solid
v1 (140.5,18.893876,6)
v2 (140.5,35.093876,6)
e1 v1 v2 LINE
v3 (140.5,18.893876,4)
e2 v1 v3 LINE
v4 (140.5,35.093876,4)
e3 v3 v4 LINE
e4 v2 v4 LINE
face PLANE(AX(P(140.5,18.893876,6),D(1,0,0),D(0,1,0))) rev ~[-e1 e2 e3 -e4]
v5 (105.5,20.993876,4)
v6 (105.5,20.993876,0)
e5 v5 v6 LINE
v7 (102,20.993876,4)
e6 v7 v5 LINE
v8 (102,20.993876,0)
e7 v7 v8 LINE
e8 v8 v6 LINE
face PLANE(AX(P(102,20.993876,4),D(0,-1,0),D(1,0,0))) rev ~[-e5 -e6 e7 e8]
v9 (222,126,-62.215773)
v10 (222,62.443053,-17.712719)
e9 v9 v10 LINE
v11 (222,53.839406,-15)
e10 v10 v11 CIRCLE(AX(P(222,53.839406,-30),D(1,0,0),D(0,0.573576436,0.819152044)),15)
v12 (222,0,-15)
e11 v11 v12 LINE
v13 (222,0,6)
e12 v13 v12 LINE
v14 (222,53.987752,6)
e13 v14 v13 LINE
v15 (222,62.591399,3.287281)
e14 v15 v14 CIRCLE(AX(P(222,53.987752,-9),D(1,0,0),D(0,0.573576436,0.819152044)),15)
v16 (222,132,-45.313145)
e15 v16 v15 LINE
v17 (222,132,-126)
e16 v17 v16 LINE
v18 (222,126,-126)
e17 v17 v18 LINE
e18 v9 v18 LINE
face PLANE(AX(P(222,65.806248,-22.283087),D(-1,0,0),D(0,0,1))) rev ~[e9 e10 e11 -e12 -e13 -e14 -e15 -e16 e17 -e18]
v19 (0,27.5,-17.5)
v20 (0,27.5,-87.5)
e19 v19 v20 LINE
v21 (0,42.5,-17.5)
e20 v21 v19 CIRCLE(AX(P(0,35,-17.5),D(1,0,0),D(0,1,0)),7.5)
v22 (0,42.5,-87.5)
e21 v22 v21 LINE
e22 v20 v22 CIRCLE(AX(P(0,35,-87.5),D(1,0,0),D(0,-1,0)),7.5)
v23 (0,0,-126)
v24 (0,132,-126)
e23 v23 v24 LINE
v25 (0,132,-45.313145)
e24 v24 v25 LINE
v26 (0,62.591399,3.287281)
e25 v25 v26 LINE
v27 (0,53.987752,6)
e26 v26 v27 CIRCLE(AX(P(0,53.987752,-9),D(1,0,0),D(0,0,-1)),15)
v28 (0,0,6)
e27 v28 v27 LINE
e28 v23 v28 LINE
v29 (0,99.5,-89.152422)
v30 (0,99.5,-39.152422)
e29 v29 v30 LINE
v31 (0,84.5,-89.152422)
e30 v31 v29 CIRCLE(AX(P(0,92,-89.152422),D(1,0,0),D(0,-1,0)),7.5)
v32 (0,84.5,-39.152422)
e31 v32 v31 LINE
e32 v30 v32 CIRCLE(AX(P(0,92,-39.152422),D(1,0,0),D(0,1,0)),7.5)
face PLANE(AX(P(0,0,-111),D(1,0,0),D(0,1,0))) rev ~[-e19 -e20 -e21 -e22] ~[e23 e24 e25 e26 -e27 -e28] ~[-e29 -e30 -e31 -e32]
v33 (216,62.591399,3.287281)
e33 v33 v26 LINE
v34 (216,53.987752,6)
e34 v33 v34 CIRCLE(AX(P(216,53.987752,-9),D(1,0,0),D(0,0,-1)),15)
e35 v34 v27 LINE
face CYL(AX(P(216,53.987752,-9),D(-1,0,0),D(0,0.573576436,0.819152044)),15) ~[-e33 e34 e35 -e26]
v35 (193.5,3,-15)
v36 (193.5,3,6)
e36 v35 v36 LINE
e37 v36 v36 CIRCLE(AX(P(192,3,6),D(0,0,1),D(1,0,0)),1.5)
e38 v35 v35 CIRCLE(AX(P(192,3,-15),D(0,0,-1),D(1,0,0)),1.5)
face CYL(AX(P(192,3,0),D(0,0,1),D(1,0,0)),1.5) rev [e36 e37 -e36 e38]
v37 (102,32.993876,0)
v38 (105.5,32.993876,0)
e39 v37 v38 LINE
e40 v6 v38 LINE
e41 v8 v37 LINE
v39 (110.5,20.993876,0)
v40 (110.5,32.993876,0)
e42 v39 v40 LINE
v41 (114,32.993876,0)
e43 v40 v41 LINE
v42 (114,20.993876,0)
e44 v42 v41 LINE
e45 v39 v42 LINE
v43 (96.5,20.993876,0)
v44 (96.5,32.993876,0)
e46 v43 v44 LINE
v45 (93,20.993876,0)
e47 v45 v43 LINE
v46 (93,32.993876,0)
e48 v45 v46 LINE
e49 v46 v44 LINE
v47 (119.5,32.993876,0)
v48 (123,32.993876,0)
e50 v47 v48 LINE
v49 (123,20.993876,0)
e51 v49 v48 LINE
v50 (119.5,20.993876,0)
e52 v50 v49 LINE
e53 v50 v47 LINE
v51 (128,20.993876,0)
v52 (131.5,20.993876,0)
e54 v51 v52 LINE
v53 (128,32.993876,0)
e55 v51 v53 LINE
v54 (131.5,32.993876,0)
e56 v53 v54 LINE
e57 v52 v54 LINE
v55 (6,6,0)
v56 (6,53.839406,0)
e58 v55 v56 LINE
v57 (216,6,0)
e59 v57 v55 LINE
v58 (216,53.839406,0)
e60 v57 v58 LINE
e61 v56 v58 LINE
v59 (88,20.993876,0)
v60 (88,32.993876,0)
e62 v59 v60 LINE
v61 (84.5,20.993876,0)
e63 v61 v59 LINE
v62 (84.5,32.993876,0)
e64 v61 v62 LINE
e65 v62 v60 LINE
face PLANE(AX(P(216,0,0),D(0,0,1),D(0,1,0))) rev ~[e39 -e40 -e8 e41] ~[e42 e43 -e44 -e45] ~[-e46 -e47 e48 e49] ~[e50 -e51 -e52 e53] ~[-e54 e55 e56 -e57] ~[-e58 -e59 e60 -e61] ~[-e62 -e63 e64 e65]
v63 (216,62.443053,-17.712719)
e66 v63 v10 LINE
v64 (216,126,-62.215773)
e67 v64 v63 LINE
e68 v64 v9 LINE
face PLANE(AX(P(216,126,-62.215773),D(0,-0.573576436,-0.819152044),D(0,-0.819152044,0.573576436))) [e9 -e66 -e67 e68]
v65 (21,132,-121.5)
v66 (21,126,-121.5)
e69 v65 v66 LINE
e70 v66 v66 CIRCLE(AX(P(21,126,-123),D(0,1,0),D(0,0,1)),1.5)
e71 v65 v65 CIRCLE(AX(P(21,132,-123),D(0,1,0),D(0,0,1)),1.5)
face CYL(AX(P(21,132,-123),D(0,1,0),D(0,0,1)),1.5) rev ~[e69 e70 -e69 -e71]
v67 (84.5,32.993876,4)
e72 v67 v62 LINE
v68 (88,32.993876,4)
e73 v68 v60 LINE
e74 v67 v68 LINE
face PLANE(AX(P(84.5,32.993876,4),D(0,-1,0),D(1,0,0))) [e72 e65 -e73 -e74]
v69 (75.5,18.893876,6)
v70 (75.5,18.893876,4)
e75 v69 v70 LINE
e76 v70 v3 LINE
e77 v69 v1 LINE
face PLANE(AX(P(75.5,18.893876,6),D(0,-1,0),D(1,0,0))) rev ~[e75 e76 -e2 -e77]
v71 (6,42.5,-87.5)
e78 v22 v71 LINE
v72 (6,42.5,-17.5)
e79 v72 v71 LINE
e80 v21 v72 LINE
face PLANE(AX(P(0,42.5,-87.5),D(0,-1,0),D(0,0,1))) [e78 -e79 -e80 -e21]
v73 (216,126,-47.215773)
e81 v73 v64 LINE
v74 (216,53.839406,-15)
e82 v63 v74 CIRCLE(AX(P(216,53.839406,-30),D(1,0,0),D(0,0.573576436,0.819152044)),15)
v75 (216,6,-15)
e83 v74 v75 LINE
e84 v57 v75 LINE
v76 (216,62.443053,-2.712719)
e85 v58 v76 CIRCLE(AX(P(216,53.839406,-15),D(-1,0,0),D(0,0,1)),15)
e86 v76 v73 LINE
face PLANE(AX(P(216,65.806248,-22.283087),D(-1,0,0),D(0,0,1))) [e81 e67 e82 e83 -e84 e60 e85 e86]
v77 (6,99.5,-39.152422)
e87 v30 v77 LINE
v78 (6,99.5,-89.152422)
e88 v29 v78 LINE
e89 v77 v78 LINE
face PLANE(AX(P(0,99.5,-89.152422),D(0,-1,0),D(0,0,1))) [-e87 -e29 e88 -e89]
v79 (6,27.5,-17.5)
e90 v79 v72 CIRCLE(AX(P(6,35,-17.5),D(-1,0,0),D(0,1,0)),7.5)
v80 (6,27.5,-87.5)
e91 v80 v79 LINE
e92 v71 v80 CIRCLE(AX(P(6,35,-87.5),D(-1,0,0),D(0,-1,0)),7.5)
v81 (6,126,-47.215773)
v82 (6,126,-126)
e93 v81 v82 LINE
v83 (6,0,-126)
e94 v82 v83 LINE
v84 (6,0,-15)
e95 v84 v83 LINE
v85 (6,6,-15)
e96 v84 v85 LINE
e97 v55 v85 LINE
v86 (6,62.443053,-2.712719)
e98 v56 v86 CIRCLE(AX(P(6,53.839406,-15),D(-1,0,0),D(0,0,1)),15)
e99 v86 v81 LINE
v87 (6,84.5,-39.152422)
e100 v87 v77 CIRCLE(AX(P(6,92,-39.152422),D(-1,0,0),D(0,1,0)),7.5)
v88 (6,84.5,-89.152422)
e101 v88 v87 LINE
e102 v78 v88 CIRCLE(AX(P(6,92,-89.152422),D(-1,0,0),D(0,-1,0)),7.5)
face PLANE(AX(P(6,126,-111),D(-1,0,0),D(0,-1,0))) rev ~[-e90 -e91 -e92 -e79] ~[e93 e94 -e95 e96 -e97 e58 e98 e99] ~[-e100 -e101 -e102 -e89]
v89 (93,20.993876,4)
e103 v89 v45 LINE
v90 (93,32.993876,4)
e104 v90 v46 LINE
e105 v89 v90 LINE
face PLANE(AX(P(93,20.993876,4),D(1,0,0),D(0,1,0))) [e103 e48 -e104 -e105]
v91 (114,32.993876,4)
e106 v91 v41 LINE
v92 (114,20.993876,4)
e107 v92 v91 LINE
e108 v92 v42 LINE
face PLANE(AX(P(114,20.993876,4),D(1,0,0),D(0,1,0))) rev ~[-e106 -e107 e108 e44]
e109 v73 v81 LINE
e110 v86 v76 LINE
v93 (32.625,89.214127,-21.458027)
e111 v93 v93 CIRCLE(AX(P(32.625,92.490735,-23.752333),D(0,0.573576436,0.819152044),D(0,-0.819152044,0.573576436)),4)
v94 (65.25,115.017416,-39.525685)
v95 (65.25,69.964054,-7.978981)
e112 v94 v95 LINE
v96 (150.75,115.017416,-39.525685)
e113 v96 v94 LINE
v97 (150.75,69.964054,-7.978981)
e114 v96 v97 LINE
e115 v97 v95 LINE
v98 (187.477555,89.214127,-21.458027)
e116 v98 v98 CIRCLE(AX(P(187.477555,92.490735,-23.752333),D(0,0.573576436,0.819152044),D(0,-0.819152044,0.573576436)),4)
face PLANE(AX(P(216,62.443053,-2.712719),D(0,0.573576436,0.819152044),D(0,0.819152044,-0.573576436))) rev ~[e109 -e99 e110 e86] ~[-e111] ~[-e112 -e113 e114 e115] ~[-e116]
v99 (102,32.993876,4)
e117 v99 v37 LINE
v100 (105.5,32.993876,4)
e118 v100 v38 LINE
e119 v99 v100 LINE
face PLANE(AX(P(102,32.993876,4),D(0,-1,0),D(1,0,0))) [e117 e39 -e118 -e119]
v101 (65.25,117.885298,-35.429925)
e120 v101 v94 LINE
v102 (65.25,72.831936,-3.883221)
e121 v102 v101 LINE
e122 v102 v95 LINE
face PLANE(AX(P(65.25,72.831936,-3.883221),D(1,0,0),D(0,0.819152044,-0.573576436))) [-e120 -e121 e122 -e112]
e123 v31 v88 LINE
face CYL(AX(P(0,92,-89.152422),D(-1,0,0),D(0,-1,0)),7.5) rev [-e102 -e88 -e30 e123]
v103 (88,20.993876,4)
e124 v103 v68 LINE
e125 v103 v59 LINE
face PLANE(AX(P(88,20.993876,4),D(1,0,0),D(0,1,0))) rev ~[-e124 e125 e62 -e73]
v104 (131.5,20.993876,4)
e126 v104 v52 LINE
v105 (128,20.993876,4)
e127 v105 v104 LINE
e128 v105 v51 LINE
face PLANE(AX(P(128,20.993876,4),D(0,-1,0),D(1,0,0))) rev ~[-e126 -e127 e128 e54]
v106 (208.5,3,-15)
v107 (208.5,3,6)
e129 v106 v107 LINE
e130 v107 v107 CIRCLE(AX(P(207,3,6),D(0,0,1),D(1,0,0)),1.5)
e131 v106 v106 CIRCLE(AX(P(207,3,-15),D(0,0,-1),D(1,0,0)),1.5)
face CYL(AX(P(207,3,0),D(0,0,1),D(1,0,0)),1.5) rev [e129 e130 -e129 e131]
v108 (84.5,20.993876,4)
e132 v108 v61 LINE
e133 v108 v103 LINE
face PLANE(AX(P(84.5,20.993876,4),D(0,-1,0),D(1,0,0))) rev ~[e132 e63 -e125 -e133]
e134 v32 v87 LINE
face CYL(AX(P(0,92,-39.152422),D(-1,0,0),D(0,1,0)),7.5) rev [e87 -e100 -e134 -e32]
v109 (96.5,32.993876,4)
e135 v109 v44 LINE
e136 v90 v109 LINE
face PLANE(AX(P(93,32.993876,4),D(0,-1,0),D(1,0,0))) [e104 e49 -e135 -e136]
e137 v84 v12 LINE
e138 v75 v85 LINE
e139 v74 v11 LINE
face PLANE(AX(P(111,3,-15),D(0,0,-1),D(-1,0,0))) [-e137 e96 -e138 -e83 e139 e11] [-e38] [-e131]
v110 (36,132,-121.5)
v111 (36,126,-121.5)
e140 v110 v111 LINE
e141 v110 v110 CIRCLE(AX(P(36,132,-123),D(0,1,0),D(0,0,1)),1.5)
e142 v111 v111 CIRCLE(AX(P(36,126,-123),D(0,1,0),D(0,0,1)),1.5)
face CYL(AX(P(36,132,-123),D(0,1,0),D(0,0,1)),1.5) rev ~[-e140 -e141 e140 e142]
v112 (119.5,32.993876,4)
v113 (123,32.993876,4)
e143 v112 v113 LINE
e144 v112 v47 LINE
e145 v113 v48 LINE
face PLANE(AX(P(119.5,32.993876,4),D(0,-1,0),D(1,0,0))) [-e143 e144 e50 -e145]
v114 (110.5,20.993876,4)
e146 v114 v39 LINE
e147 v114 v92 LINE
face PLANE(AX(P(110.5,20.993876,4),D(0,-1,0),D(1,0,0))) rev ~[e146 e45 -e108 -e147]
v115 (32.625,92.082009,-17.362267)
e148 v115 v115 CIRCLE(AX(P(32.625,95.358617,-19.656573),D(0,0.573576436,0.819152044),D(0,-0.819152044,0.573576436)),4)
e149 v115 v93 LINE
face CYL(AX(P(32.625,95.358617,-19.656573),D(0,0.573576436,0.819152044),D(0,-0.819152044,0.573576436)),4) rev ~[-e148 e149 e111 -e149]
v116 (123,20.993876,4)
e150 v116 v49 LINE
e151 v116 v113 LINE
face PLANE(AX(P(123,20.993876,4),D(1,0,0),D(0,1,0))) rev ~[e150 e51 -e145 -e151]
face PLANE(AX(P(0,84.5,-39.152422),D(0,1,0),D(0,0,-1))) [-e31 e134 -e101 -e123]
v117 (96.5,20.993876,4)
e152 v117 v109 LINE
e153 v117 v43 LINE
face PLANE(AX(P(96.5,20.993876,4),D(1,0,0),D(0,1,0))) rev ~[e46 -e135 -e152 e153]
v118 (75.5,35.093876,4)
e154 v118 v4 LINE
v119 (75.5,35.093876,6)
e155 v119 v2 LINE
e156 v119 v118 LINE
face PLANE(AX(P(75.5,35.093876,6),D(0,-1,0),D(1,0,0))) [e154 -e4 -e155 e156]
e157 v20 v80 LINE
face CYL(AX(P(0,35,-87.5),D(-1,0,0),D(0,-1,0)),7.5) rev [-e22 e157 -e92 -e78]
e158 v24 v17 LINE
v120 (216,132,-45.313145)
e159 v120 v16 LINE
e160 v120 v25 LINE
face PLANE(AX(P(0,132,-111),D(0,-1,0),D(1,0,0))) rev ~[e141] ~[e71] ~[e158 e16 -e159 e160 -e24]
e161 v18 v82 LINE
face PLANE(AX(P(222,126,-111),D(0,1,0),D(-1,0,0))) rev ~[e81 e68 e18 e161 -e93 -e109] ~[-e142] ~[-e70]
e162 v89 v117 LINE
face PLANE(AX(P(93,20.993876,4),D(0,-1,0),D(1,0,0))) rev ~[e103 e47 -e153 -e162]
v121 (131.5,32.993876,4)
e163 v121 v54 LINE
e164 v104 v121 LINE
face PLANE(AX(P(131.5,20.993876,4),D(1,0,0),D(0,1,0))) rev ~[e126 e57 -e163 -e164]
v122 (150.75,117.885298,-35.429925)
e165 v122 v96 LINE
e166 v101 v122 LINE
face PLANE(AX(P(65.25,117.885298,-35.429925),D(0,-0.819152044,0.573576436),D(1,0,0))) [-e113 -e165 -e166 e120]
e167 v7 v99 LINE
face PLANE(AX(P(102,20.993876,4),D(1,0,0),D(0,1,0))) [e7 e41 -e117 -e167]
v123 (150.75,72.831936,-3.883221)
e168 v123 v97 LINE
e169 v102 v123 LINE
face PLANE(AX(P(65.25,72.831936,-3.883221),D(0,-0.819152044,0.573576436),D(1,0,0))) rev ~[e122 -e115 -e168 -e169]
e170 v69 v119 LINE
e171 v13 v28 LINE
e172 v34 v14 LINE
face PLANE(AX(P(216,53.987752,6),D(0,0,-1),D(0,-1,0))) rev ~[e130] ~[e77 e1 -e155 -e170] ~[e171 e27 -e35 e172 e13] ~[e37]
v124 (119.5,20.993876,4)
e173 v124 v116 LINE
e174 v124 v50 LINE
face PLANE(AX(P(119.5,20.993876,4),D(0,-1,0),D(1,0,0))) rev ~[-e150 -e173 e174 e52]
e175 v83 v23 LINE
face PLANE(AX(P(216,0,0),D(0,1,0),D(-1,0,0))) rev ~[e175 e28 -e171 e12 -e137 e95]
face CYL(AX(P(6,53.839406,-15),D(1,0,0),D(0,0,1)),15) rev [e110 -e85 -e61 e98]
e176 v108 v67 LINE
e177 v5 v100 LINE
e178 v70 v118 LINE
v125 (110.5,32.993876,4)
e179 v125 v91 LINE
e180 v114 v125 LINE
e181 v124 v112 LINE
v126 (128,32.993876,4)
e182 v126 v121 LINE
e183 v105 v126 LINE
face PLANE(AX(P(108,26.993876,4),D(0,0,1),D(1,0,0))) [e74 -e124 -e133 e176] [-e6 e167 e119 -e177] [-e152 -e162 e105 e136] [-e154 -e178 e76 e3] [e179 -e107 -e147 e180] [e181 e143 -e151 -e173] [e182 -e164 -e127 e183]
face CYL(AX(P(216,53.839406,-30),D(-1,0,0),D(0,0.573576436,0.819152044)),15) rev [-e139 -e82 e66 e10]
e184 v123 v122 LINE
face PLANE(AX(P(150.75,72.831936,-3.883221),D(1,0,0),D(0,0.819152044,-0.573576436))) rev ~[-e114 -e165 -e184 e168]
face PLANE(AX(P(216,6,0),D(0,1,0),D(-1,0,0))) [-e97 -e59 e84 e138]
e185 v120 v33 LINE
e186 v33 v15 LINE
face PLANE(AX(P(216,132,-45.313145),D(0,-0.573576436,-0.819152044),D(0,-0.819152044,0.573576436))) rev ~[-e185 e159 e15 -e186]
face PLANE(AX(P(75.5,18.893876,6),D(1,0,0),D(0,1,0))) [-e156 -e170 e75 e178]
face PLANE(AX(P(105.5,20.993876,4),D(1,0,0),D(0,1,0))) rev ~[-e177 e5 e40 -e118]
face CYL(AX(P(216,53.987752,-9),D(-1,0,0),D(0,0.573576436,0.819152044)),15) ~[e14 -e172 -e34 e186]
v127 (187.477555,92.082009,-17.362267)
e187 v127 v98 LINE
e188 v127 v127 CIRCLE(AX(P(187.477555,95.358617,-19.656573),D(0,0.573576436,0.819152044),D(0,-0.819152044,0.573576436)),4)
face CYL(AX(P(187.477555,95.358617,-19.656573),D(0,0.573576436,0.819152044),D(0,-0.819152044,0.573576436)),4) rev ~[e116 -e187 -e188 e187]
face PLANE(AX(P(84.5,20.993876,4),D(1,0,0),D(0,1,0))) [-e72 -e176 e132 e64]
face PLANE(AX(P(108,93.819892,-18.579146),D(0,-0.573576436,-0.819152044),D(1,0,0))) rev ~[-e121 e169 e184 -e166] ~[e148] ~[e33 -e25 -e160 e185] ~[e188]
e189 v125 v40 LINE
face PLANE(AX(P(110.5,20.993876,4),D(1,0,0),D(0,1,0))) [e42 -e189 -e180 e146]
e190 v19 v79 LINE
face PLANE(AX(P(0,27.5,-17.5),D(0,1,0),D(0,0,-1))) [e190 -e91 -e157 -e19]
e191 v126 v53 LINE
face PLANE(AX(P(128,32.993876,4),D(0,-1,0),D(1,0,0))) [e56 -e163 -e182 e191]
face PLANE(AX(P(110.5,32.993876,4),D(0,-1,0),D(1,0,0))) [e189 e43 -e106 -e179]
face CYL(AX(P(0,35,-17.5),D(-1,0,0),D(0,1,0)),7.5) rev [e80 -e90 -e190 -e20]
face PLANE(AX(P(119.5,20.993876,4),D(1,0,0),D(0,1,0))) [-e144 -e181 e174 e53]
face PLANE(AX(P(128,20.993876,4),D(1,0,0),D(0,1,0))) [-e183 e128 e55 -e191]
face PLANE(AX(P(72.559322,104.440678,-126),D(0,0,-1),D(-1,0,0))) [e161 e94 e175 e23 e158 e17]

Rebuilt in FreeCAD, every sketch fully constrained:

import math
import FreeCAD as App
import Part
import Sketcher
Q = App.Units.Quantity


def edges_at(feature, points):
    """Names of the edges that pass closest to the given points."""
    edges = feature.Shape.Edges
    near = lambda p: min(range(len(edges)), key=lambda i: edges[i].distToShape(Part.Vertex(*p))[0])
    return sorted({f"Edge{near(p) + 1}" for p in points})


def add_polygon(sketch, points):
    """Adds a closed chain of lines whose ends are joined by coincident constraints."""
    first, n = sketch.GeometryCount, len(points)
    for a, b in zip(points, points[1:] + points[:1]):
        sketch.addGeometry(Part.LineSegment(App.Vector(*a, 0), App.Vector(*b, 0)), False)
    for i in range(n):
        sketch.addConstraint(Sketcher.Constraint("Coincident", first + i, 2, first + (i + 1) % n, 1))

doc = App.newDocument("Part")
body = doc.addObject("PartDesign::Body", "Body")

# Sketch on YZ plane
sketch1 = doc.addObject("Sketcher::SketchObject", "Sketch")
body.addObject(sketch1)
sketch1.AttachmentSupport = (doc.YZ_Plane, [""])
sketch1.MapMode = "FlatFace"
add_polygon(sketch1, [(126, 0), (0, 0), (0, -111), (126, -111)])  # lines 0-3
sketch1.addConstraint(Sketcher.Constraint("Horizontal", 0))
sketch1.addConstraint(Sketcher.Constraint("Vertical", 1))
sketch1.addConstraint(Sketcher.Constraint("Horizontal", 2))
sketch1.addConstraint(Sketcher.Constraint("Vertical", 3))
sketch1.addConstraint(Sketcher.Constraint("Coincident", 0, 2, -1, 1))
sketch1.addConstraint(Sketcher.Constraint("DistanceX", 0, 2, 0, 1, 126.0))
sketch1.addConstraint(Sketcher.Constraint("DistanceY", 1, 2, 1, 1, 111.0))
pad1 = doc.addObject("PartDesign::Pad", "Pad")
body.addObject(pad1)
pad1.Profile = sketch1
pad1.Length = 6

# Sketch on XZ plane
sketch2 = doc.addObject("Sketcher::SketchObject", "Sketch001")
body.addObject(sketch2)
sketch2.AttachmentSupport = (doc.XZ_Plane, [""])
sketch2.MapMode = "FlatFace"
sketch2.AttachmentOffset = App.Placement(App.Vector(0, 0, -126), App.Rotation())
add_polygon(sketch2, [(0, -111), (0, 0), (216, 0), (216, -111)])  # lines 0-3
sketch2.addConstraint(Sketcher.Constraint("Vertical", 0))
sketch2.addConstraint(Sketcher.Constraint("Horizontal", 1))
sketch2.addConstraint(Sketcher.Constraint("Vertical", 2))
sketch2.addConstraint(Sketcher.Constraint("Horizontal", 3))
sketch2.addConstraint(Sketcher.Constraint("Coincident", 0, 2, -1, 1))
sketch2.addConstraint(Sketcher.Constraint("DistanceX", 1, 1, 1, 2, 216.0))
sketch2.addConstraint(Sketcher.Constraint("DistanceY", 0, 1, 0, 2, 111.0))
pad2 = doc.addObject("PartDesign::Pad", "Pad001")
body.addObject(pad2)
pad2.Profile = sketch2
pad2.Length = 6
pad2.Reversed = True

# Sketch on XY plane
sketch3 = doc.addObject("Sketcher::SketchObject", "Sketch002")
body.addObject(sketch3)
sketch3.AttachmentSupport = (doc.XY_Plane, [""])
sketch3.MapMode = "FlatFace"
add_polygon(sketch3, [(0, 132), (0, 0), (216, 0), (216, 132)])  # lines 0-3
sketch3.addConstraint(Sketcher.Constraint("Vertical", 0))
sketch3.addConstraint(Sketcher.Constraint("Horizontal", 1))
sketch3.addConstraint(Sketcher.Constraint("Vertical", 2))
sketch3.addConstraint(Sketcher.Constraint("Horizontal", 3))
sketch3.addConstraint(Sketcher.Constraint("Coincident", 0, 2, -1, 1))
sketch3.addConstraint(Sketcher.Constraint("DistanceX", 1, 1, 1, 2, 216.0))
sketch3.addConstraint(Sketcher.Constraint("DistanceY", 0, 2, 0, 1, 132.0))
pad3 = doc.addObject("PartDesign::Pad", "Pad002")
body.addObject(pad3)
pad3.Profile = sketch3
pad3.Length = 6

# Sketch on an angled plane
sketch4 = doc.addObject("Sketcher::SketchObject", "Sketch003")
body.addObject(sketch4)
sketch4.Placement = App.Placement(App.Vector(0, 19.268574, 27.518376), App.Rotation(App.Vector(1, 0, 0), App.Vector(0, -0.819152044, 0.573576436), App.Vector(0, -0.573576436, -0.819152044), "ZXY"))
add_polygon(sketch4, [(0, -38), (0, -138), (216, -138), (216, -38)])  # lines 0-3
sketch4.addConstraint(Sketcher.Constraint("Vertical", 0))
sketch4.addConstraint(Sketcher.Constraint("Horizontal", 1))
sketch4.addConstraint(Sketcher.Constraint("Vertical", 2))
sketch4.addConstraint(Sketcher.Constraint("Horizontal", 3))
sketch4.addConstraint(Sketcher.Constraint("PointOnObject", 0, 2, -2))
sketch4.addConstraint(Sketcher.Constraint("DistanceX", 1, 1, 1, 2, 216.0))
sketch4.addConstraint(Sketcher.Constraint("DistanceY", 0, 2, 0, 1, 99.986345))
sketch4.addConstraint(Sketcher.Constraint("DistanceY", 0, 2, -1, 1, 137.502489))
pocket1 = doc.addObject("PartDesign::Pocket", "Pocket")
body.addObject(pocket1)
pocket1.Profile = sketch4
pocket1.Length = 75

# Sketch on an angled plane
sketch5 = doc.addObject("Sketcher::SketchObject", "Sketch004")
body.addObject(sketch5)
sketch5.Placement = App.Placement(App.Vector(0, 19.268574, 27.518376), App.Rotation(App.Vector(1, 0, 0), App.Vector(0, -0.819152044, 0.573576436), App.Vector(0, -0.573576436, -0.819152044), "ZXY"))
add_polygon(sketch5, [(0, -38), (0, -138), (216, -138), (216, -38)])  # lines 0-3
sketch5.addConstraint(Sketcher.Constraint("Vertical", 0))
sketch5.addConstraint(Sketcher.Constraint("Horizontal", 1))
sketch5.addConstraint(Sketcher.Constraint("Vertical", 2))
sketch5.addConstraint(Sketcher.Constraint("Horizontal", 3))
sketch5.addConstraint(Sketcher.Constraint("PointOnObject", 0, 2, -2))
sketch5.addConstraint(Sketcher.Constraint("DistanceX", 1, 1, 1, 2, 216.0))
sketch5.addConstraint(Sketcher.Constraint("DistanceY", 0, 2, 0, 1, 99.986345))
sketch5.addConstraint(Sketcher.Constraint("DistanceY", 0, 2, -1, 1, 137.502489))
pad4 = doc.addObject("PartDesign::Pad", "Pad003")
body.addObject(pad4)
pad4.Profile = sketch5
pad4.Length = 5
pad4.Reversed = True

# Sketch on YZ plane
sketch6 = doc.addObject("Sketcher::SketchObject", "Sketch005")
body.addObject(sketch6)
sketch6.AttachmentSupport = (doc.YZ_Plane, [""])
sketch6.MapMode = "FlatFace"
sketch6.AttachmentOffset = App.Placement(App.Vector(0, 0, 216), App.Rotation())
add_polygon(sketch6, [(50, 6), (58.7, 6), (52.9, 10.1)])  # lines 0-2
add_polygon(sketch6, [(132, -45.3), (132, -51.2), (134.8, -47.3)])  # lines 3-5
sketch6.addConstraint(Sketcher.Constraint("Horizontal", 0))
sketch6.addConstraint(Sketcher.Constraint("Vertical", 3))
sketch6.addConstraint(Sketcher.Constraint("Perpendicular", 1, 2))
sketch6.addConstraint(Sketcher.Constraint("Parallel", 2, 4))
sketch6.addConstraint(Sketcher.Constraint("Perpendicular", 4, 5))
sketch6.addConstraint(Sketcher.Constraint("Angle", 1, Q("145 deg")))
sketch6.addConstraint(Sketcher.Constraint("Distance", 2, 5.0))
sketch6.addConstraint(Sketcher.Constraint("DistanceY", -1, 1, 0, 2, 6.0))
sketch6.addConstraint(Sketcher.Constraint("DistanceX", -1, 1, 2, 2, 50.0))
sketch6.addConstraint(Sketcher.Constraint("DistanceX", -1, 1, 3, 2, 132.0))
sketch6.addConstraint(Sketcher.Constraint("DistanceY", 3, 2, 3, 1, 5.899591))
sketch6.addConstraint(Sketcher.Constraint("DistanceY", 4, 2, -1, 1, 47.254051))
pocket2 = doc.addObject("PartDesign::Pocket", "Pocket001")
body.addObject(pocket2)
pocket2.Profile = sketch6
pocket2.Length = 314

# Sketch on an angled plane
sketch7 = doc.addObject("Sketcher::SketchObject", "Sketch006")
body.addObject(sketch7)
sketch7.Placement = App.Placement(App.Vector(0, 22.136456, 31.614136), App.Rotation(App.Vector(1, 0, 0), App.Vector(0, 0.819152044, -0.573576436), App.Vector(0, 0.573576436, 0.819152044), "ZXY"))
add_polygon(sketch7, [(65, 117), (65, 62), (151, 62), (151, 117)])  # lines 0-3
sketch7.addConstraint(Sketcher.Constraint("Vertical", 0))
sketch7.addConstraint(Sketcher.Constraint("Horizontal", 1))
sketch7.addConstraint(Sketcher.Constraint("Vertical", 2))
sketch7.addConstraint(Sketcher.Constraint("Horizontal", 3))
sketch7.addConstraint(Sketcher.Constraint("DistanceY", 0, 2, 0, 1, 55.0))
sketch7.addConstraint(Sketcher.Constraint("DistanceX", 1, 1, 1, 2, 85.5))
sketch7.addConstraint(Sketcher.Constraint("DistanceX", -1, 1, 0, 2, 65.25))
sketch7.addConstraint(Sketcher.Constraint("DistanceY", -1, 1, 0, 2, 61.887753))
pocket3 = doc.addObject("PartDesign::Pocket", "Pocket002")
body.addObject(pocket3)
pocket3.Profile = sketch7
pocket3.Length = 14
doc.recompute()

fillet = doc.addObject("PartDesign::Fillet", "Fillet")
body.addObject(fillet)
fillet.Base = (pocket3, edges_at(pocket3, [(111, 58.569, 0), (108, 58.717, 6)]))
fillet.Radius = 15

# Sketch on YZ plane
sketch8 = doc.addObject("Sketcher::SketchObject", "Sketch007")
body.addObject(sketch8)
sketch8.AttachmentSupport = (doc.YZ_Plane, [""])
sketch8.MapMode = "FlatFace"
sketch8.addGeometry(Part.LineSegment(App.Vector(42, -18, 0), App.Vector(42, -88, 0)), False)
sketch8.addGeometry(Part.ArcOfCircle(Part.Circle(App.Vector(35, -88, 0), App.Vector(0, 0, 1), 8), math.radians(180), math.radians(360)), False)
sketch8.addGeometry(Part.LineSegment(App.Vector(28, -88, 0), App.Vector(28, -18, 0)), False)
sketch8.addGeometry(Part.ArcOfCircle(Part.Circle(App.Vector(35, -18, 0), App.Vector(0, 0, 1), 8), math.radians(0), math.radians(180)), False)
sketch8.addGeometry(Part.LineSegment(App.Vector(100, -39, 0), App.Vector(100, -89, 0)), False)
sketch8.addGeometry(Part.ArcOfCircle(Part.Circle(App.Vector(92, -89, 0), App.Vector(0, 0, 1), 8), math.radians(180), math.radians(360)), False)
sketch8.addGeometry(Part.LineSegment(App.Vector(84, -89, 0), App.Vector(84, -39, 0)), False)
sketch8.addGeometry(Part.ArcOfCircle(Part.Circle(App.Vector(92, -39, 0), App.Vector(0, 0, 1), 8), math.radians(0), math.radians(180)), False)
sketch8.addConstraint(Sketcher.Constraint("Tangent", 0, 2, 1, 2))
sketch8.addConstraint(Sketcher.Constraint("Tangent", 1, 1, 2, 1))
sketch8.addConstraint(Sketcher.Constraint("Tangent", 2, 2, 3, 2))
sketch8.addConstraint(Sketcher.Constraint("Tangent", 3, 1, 0, 1))
sketch8.addConstraint(Sketcher.Constraint("Tangent", 4, 2, 5, 2))
sketch8.addConstraint(Sketcher.Constraint("Tangent", 5, 1, 6, 1))
sketch8.addConstraint(Sketcher.Constraint("Tangent", 6, 2, 7, 2))
sketch8.addConstraint(Sketcher.Constraint("Tangent", 7, 1, 4, 1))
sketch8.addConstraint(Sketcher.Constraint("Vertical", 0))
sketch8.addConstraint(Sketcher.Constraint("Vertical", 2))
sketch8.addConstraint(Sketcher.Constraint("Vertical", 4))
sketch8.addConstraint(Sketcher.Constraint("Vertical", 6))
sketch8.addConstraint(Sketcher.Constraint("Equal", 3, 5))
sketch8.addConstraint(Sketcher.Constraint("Radius", 1, 7.5))
sketch8.addConstraint(Sketcher.Constraint("DistanceY", 0, 2, 0, 1, 70.0))
sketch8.addConstraint(Sketcher.Constraint("DistanceY", 4, 2, 4, 1, 50.0))
sketch8.addConstraint(Sketcher.Constraint("DistanceX", -1, 1, 1, 3, 35.0))
sketch8.addConstraint(Sketcher.Constraint("DistanceX", -1, 1, 5, 3, 92.0))
sketch8.addConstraint(Sketcher.Constraint("DistanceY", 1, 3, -1, 1, 87.5))
sketch8.addConstraint(Sketcher.Constraint("DistanceY", 5, 3, -1, 1, 89.152422))
pocket4 = doc.addObject("PartDesign::Pocket", "Pocket003")
body.addObject(pocket4)
pocket4.Profile = sketch8
pocket4.Length = 27
pocket4.Reversed = True

# Sketch on XY plane
sketch9 = doc.addObject("Sketcher::SketchObject", "Sketch008")
body.addObject(sketch9)
sketch9.AttachmentSupport = (doc.XY_Plane, [""])
sketch9.MapMode = "FlatFace"
sketch9.AttachmentOffset = App.Placement(App.Vector(0, 0, 6), App.Rotation())
add_polygon(sketch9, [(76, 35), (76, 19), (140, 19), (140, 35)])  # lines 0-3
sketch9.addConstraint(Sketcher.Constraint("Vertical", 0))
sketch9.addConstraint(Sketcher.Constraint("Horizontal", 1))
sketch9.addConstraint(Sketcher.Constraint("Vertical", 2))
sketch9.addConstraint(Sketcher.Constraint("Horizontal", 3))
sketch9.addConstraint(Sketcher.Constraint("DistanceX", 1, 1, 1, 2, 65.0))
sketch9.addConstraint(Sketcher.Constraint("DistanceY", 0, 2, 0, 1, 16.2))
sketch9.addConstraint(Sketcher.Constraint("DistanceX", -1, 1, 0, 2, 75.5))
sketch9.addConstraint(Sketcher.Constraint("DistanceY", -1, 1, 0, 2, 18.893876))
pocket5 = doc.addObject("PartDesign::Pocket", "Pocket004")
body.addObject(pocket5)
pocket5.Profile = sketch9
pocket5.Length = 2

# Sketch on XY plane
sketch10 = doc.addObject("Sketcher::SketchObject", "Sketch009")
body.addObject(sketch10)
sketch10.AttachmentSupport = (doc.XY_Plane, [""])
sketch10.MapMode = "FlatFace"
sketch10.AttachmentOffset = App.Placement(App.Vector(0, 0, 4), App.Rotation())
add_polygon(sketch10, [(84.5, 33), (84.5, 21), (88, 21), (88, 33)])  # lines 0-3
add_polygon(sketch10, [(93, 33), (93, 21), (96.5, 21), (96.5, 33)])  # lines 4-7
add_polygon(sketch10, [(102, 33), (102, 21), (105.5, 21), (105.5, 33)])  # lines 8-11
add_polygon(sketch10, [(110.5, 33), (110.5, 21), (114, 21), (114, 33)])  # lines 12-15
add_polygon(sketch10, [(119.5, 33), (119.5, 21), (123, 21), (123, 33)])  # lines 16-19
add_polygon(sketch10, [(128, 33), (128, 21), (131.5, 21), (131.5, 33)])  # lines 20-23
sketch10.addConstraint(Sketcher.Constraint("Vertical", 0))
sketch10.addConstraint(Sketcher.Constraint("Horizontal", 1))
sketch10.addConstraint(Sketcher.Constraint("Vertical", 2))
sketch10.addConstraint(Sketcher.Constraint("Horizontal", 3))
sketch10.addConstraint(Sketcher.Constraint("Vertical", 4))
sketch10.addConstraint(Sketcher.Constraint("Horizontal", 5))
sketch10.addConstraint(Sketcher.Constraint("Vertical", 6))
sketch10.addConstraint(Sketcher.Constraint("Horizontal", 7))
sketch10.addConstraint(Sketcher.Constraint("Vertical", 8))
sketch10.addConstraint(Sketcher.Constraint("Horizontal", 9))
sketch10.addConstraint(Sketcher.Constraint("Vertical", 10))
sketch10.addConstraint(Sketcher.Constraint("Horizontal", 11))
sketch10.addConstraint(Sketcher.Constraint("Vertical", 12))
sketch10.addConstraint(Sketcher.Constraint("Horizontal", 13))
sketch10.addConstraint(Sketcher.Constraint("Vertical", 14))
sketch10.addConstraint(Sketcher.Constraint("Horizontal", 15))
sketch10.addConstraint(Sketcher.Constraint("Vertical", 16))
sketch10.addConstraint(Sketcher.Constraint("Horizontal", 17))
sketch10.addConstraint(Sketcher.Constraint("Vertical", 18))
sketch10.addConstraint(Sketcher.Constraint("Horizontal", 19))
sketch10.addConstraint(Sketcher.Constraint("Vertical", 20))
sketch10.addConstraint(Sketcher.Constraint("Horizontal", 21))
sketch10.addConstraint(Sketcher.Constraint("Vertical", 22))
sketch10.addConstraint(Sketcher.Constraint("Horizontal", 23))
sketch10.addConstraint(Sketcher.Constraint("Horizontal", 1, 2, 4, 2))
sketch10.addConstraint(Sketcher.Constraint("Horizontal", 3, 2, 6, 2))
sketch10.addConstraint(Sketcher.Constraint("Horizontal", 5, 2, 8, 2))
sketch10.addConstraint(Sketcher.Constraint("Horizontal", 7, 2, 10, 2))
sketch10.addConstraint(Sketcher.Constraint("Horizontal", 9, 2, 12, 2))
sketch10.addConstraint(Sketcher.Constraint("Horizontal", 11, 2, 14, 2))
sketch10.addConstraint(Sketcher.Constraint("Horizontal", 13, 2, 16, 2))
sketch10.addConstraint(Sketcher.Constraint("Horizontal", 15, 2, 18, 2))
sketch10.addConstraint(Sketcher.Constraint("Horizontal", 17, 2, 20, 2))
sketch10.addConstraint(Sketcher.Constraint("Horizontal", 19, 2, 22, 2))
sketch10.addConstraint(Sketcher.Constraint("Equal", 3, 5))
sketch10.addConstraint(Sketcher.Constraint("Equal", 7, 9))
sketch10.addConstraint(Sketcher.Constraint("Equal", 11, 13))
sketch10.addConstraint(Sketcher.Constraint("Equal", 15, 17))
sketch10.addConstraint(Sketcher.Constraint("Equal", 19, 21))
sketch10.addConstraint(Sketcher.Constraint("DistanceY", 0, 2, 0, 1, 12.0))
sketch10.addConstraint(Sketcher.Constraint("DistanceX", 1, 1, 1, 2, 3.5))
sketch10.addConstraint(Sketcher.Constraint("DistanceX", -1, 1, 1, 2, 88.0))
sketch10.addConstraint(Sketcher.Constraint("DistanceX", -1, 1, 4, 2, 93.0))
sketch10.addConstraint(Sketcher.Constraint("DistanceX", -1, 1, 8, 2, 102.0))
sketch10.addConstraint(Sketcher.Constraint("DistanceX", -1, 1, 13, 2, 114.0))
sketch10.addConstraint(Sketcher.Constraint("DistanceX", -1, 1, 17, 2, 123.0))
sketch10.addConstraint(Sketcher.Constraint("DistanceX", -1, 1, 20, 2, 128.0))
sketch10.addConstraint(Sketcher.Constraint("DistanceY", -1, 1, 0, 2, 20.993876))
pocket6 = doc.addObject("PartDesign::Pocket", "Pocket005")
body.addObject(pocket6)
pocket6.Profile = sketch10
pocket6.Length = 11

# Sketch on YZ plane
sketch11 = doc.addObject("Sketcher::SketchObject", "Sketch010")
body.addObject(sketch11)
sketch11.AttachmentSupport = (doc.YZ_Plane, [""])
sketch11.MapMode = "FlatFace"
sketch11.AttachmentOffset = App.Placement(App.Vector(0, 0, 216), App.Rotation())
sketch11.addGeometry(Part.LineSegment(App.Vector(126, -111, 0), App.Vector(132, -111, 0)), False)
sketch11.addGeometry(Part.LineSegment(App.Vector(132, -111, 0), App.Vector(132, -45, 0)), False)
sketch11.addGeometry(Part.LineSegment(App.Vector(132, -45, 0), App.Vector(63, 3, 0)), False)
sketch11.addGeometry(Part.ArcOfCircle(Part.Circle(App.Vector(54, -9, 0), App.Vector(0, 0, 1), 15), math.radians(55), math.radians(90)), False)
sketch11.addGeometry(Part.LineSegment(App.Vector(54, 6, 0), App.Vector(0, 6, 0)), False)
sketch11.addGeometry(Part.LineSegment(App.Vector(0, 6, 0), App.Vector(0, 0, 0)), False)
sketch11.addGeometry(Part.LineSegment(App.Vector(0, 0, 0), App.Vector(54, 0, 0)), False)
sketch11.addGeometry(Part.ArcOfCircle(Part.Circle(App.Vector(54, -15, 0), App.Vector(0, 0, 1), 15), math.radians(55), math.radians(90)), False)
sketch11.addGeometry(Part.LineSegment(App.Vector(62, -3, 0), App.Vector(126, -47, 0)), False)
sketch11.addGeometry(Part.LineSegment(App.Vector(126, -47, 0), App.Vector(126, -111, 0)), False)
sketch11.addConstraint(Sketcher.Constraint("Coincident", 0, 2, 1, 1))
sketch11.addConstraint(Sketcher.Constraint("Coincident", 1, 2, 2, 1))
sketch11.addConstraint(Sketcher.Constraint("Tangent", 2, 2, 3, 1))
sketch11.addConstraint(Sketcher.Constraint("Tangent", 3, 2, 4, 1))
sketch11.addConstraint(Sketcher.Constraint("Coincident", 4, 2, 5, 1))
sketch11.addConstraint(Sketcher.Constraint("Coincident", 5, 2, 6, 1))
sketch11.addConstraint(Sketcher.Constraint("Tangent", 6, 2, 7, 2))
sketch11.addConstraint(Sketcher.Constraint("Tangent", 7, 1, 8, 1))
sketch11.addConstraint(Sketcher.Constraint("Coincident", 8, 2, 9, 1))
sketch11.addConstraint(Sketcher.Constraint("Coincident", 9, 2, 0, 1))
sketch11.addConstraint(Sketcher.Constraint("Horizontal", 0))
sketch11.addConstraint(Sketcher.Constraint("Vertical", 1))
sketch11.addConstraint(Sketcher.Constraint("Horizontal", 4))
sketch11.addConstraint(Sketcher.Constraint("Vertical", 5))
sketch11.addConstraint(Sketcher.Constraint("Horizontal", 6))
sketch11.addConstraint(Sketcher.Constraint("Vertical", 9))
sketch11.addConstraint(Sketcher.Constraint("Coincident", 5, 2, -1, 1))
sketch11.addConstraint(Sketcher.Constraint("Equal", 3, 7))
sketch11.addConstraint(Sketcher.Constraint("Parallel", 2, 8))
sketch11.addConstraint(Sketcher.Constraint("Equal", 0, 5))
sketch11.addConstraint(Sketcher.Constraint("Radius", 3, 15.0))
sketch11.addConstraint(Sketcher.Constraint("DistanceX", 0, 1, 0, 2, 6.0))
sketch11.addConstraint(Sketcher.Constraint("Angle", 2, Q("145 deg")))
sketch11.addConstraint(Sketcher.Constraint("DistanceX", -1, 1, 0, 2, 132.0))
sketch11.addConstraint(Sketcher.Constraint("DistanceY", 0, 2, -1, 1, 111.0))
sketch11.addConstraint(Sketcher.Constraint("DistanceX", -1, 1, 2, 2, 62.591399))
sketch11.addConstraint(Sketcher.Constraint("DistanceX", 3, 3, 7, 1, 8.455301))
pad5 = doc.addObject("PartDesign::Pad", "Pad004")
body.addObject(pad5)
pad5.Profile = sketch11
pad5.Length = 6

# Sketch on XY plane
sketch12 = doc.addObject("Sketcher::SketchObject", "Sketch011")
body.addObject(sketch12)
sketch12.AttachmentSupport = (doc.XY_Plane, [""])
sketch12.MapMode = "FlatFace"
sketch12.AttachmentOffset = App.Placement(App.Vector(0, 0, 6), App.Rotation())
sketch12.addGeometry(Part.Circle(App.Vector(207, 3, 0), App.Vector(0, 0, 1), 1.5), False)
sketch12.addGeometry(Part.Circle(App.Vector(192, 3, 0), App.Vector(0, 0, 1), 1.5), False)
sketch12.addConstraint(Sketcher.Constraint("Equal", 0, 1))
sketch12.addConstraint(Sketcher.Constraint("Horizontal", 0, 3, 1, 3))
sketch12.addConstraint(Sketcher.Constraint("Diameter", 0, 3.0))
sketch12.addConstraint(Sketcher.Constraint("DistanceX", -1, 1, 0, 3, 207.0))
sketch12.addConstraint(Sketcher.Constraint("DistanceY", -1, 1, 0, 3, 3.0))
sketch12.addConstraint(Sketcher.Constraint("DistanceX", -1, 1, 1, 3, 192.0))
pocket7 = doc.addObject("PartDesign::Pocket", "Pocket006")
body.addObject(pocket7)
pocket7.Profile = sketch12
pocket7.Length = 20

# Sketch on XY plane
sketch13 = doc.addObject("Sketcher::SketchObject", "Sketch012")
body.addObject(sketch13)
sketch13.AttachmentSupport = (doc.XY_Plane, [""])
sketch13.MapMode = "FlatFace"
sketch13.AttachmentOffset = App.Placement(App.Vector(0, 0, -111), App.Rotation())
add_polygon(sketch13, [(222, 132), (222, 126), (6, 126), (6, 0), (0, 0), (0, 132)])  # lines 0-5
sketch13.addConstraint(Sketcher.Constraint("Vertical", 0))
sketch13.addConstraint(Sketcher.Constraint("Horizontal", 1))
sketch13.addConstraint(Sketcher.Constraint("Vertical", 2))
sketch13.addConstraint(Sketcher.Constraint("Horizontal", 3))
sketch13.addConstraint(Sketcher.Constraint("Vertical", 4))
sketch13.addConstraint(Sketcher.Constraint("Horizontal", 5))
sketch13.addConstraint(Sketcher.Constraint("Coincident", 3, 2, -1, 1))
sketch13.addConstraint(Sketcher.Constraint("Equal", 3, 0))
sketch13.addConstraint(Sketcher.Constraint("DistanceX", 1, 2, 1, 1, 216.0))
sketch13.addConstraint(Sketcher.Constraint("DistanceX", 3, 2, 3, 1, 6.0))
sketch13.addConstraint(Sketcher.Constraint("DistanceY", 2, 2, 2, 1, 126.0))
pad6 = doc.addObject("PartDesign::Pad", "Pad005")
body.addObject(pad6)
pad6.Profile = sketch13
pad6.Length = 15
pad6.Reversed = True

# Sketch on XZ plane
sketch14 = doc.addObject("Sketcher::SketchObject", "Sketch013")
body.addObject(sketch14)
sketch14.AttachmentSupport = (doc.XZ_Plane, [""])
sketch14.MapMode = "FlatFace"
sketch14.AttachmentOffset = App.Placement(App.Vector(0, 0, -132), App.Rotation())
sketch14.addGeometry(Part.Circle(App.Vector(21, -123, 0), App.Vector(0, 0, 1), 1.5), False)
sketch14.addGeometry(Part.Circle(App.Vector(36, -123, 0), App.Vector(0, 0, 1), 1.5), False)
sketch14.addConstraint(Sketcher.Constraint("Equal", 0, 1))
sketch14.addConstraint(Sketcher.Constraint("Horizontal", 0, 3, 1, 3))
sketch14.addConstraint(Sketcher.Constraint("Diameter", 0, 3.0))
sketch14.addConstraint(Sketcher.Constraint("DistanceX", -1, 1, 0, 3, 21.0))
sketch14.addConstraint(Sketcher.Constraint("DistanceY", 0, 3, -1, 1, 123.0))
sketch14.addConstraint(Sketcher.Constraint("DistanceX", -1, 1, 1, 3, 36.0))
pocket8 = doc.addObject("PartDesign::Pocket", "Pocket007")
body.addObject(pocket8)
pocket8.Profile = sketch14
pocket8.Length = 15
pocket8.Reversed = True

# Sketch on YZ plane
sketch15 = doc.addObject("Sketcher::SketchObject", "Sketch014")
body.addObject(sketch15)
sketch15.AttachmentSupport = (doc.YZ_Plane, [""])
sketch15.MapMode = "FlatFace"
sketch15.AttachmentOffset = App.Placement(App.Vector(0, 0, 216), App.Rotation())
sketch15.addGeometry(Part.LineSegment(App.Vector(126, -47, 0), App.Vector(62, -3, 0)), False)
sketch15.addGeometry(Part.ArcOfCircle(Part.Circle(App.Vector(54, -15, 0), App.Vector(0, 0, 1), 15), math.radians(55), math.radians(90)), False)
sketch15.addGeometry(Part.LineSegment(App.Vector(54, 0, 0), App.Vector(0, 0, 0)), False)
sketch15.addGeometry(Part.LineSegment(App.Vector(0, 0, 0), App.Vector(0, -15, 0)), False)
sketch15.addGeometry(Part.LineSegment(App.Vector(0, -15, 0), App.Vector(54, -15, 0)), False)
sketch15.addGeometry(Part.ArcOfCircle(Part.Circle(App.Vector(54, -30, 0), App.Vector(0, 0, 1), 15), math.radians(55), math.radians(90)), False)
sketch15.addGeometry(Part.LineSegment(App.Vector(62, -18, 0), App.Vector(126, -62, 0)), False)
sketch15.addGeometry(Part.LineSegment(App.Vector(126, -62, 0), App.Vector(126, -47, 0)), False)
sketch15.addConstraint(Sketcher.Constraint("Tangent", 0, 2, 1, 1))
sketch15.addConstraint(Sketcher.Constraint("Tangent", 1, 2, 2, 1))
sketch15.addConstraint(Sketcher.Constraint("Coincident", 2, 2, 3, 1))
sketch15.addConstraint(Sketcher.Constraint("Coincident", 3, 2, 4, 1))
sketch15.addConstraint(Sketcher.Constraint("Tangent", 4, 2, 5, 2))
sketch15.addConstraint(Sketcher.Constraint("Tangent", 5, 1, 6, 1))
sketch15.addConstraint(Sketcher.Constraint("Coincident", 6, 2, 7, 1))
sketch15.addConstraint(Sketcher.Constraint("Coincident", 7, 2, 0, 1))
sketch15.addConstraint(Sketcher.Constraint("Horizontal", 2))
sketch15.addConstraint(Sketcher.Constraint("Vertical", 3))
sketch15.addConstraint(Sketcher.Constraint("Horizontal", 4))
sketch15.addConstraint(Sketcher.Constraint("Vertical", 7))
sketch15.addConstraint(Sketcher.Constraint("Coincident", 2, 2, -1, 1))
sketch15.addConstraint(Sketcher.Constraint("Coincident", 4, 2, 1, 3))
sketch15.addConstraint(Sketcher.Constraint("Equal", 1, 5))
sketch15.addConstraint(Sketcher.Constraint("Parallel", 0, 6))
sketch15.addConstraint(Sketcher.Constraint("Radius", 1, 15.0))
sketch15.addConstraint(Sketcher.Constraint("Angle", 0, Q("145 deg")))
sketch15.addConstraint(Sketcher.Constraint("DistanceX", -1, 1, 6, 2, 126.0))
sketch15.addConstraint(Sketcher.Constraint("DistanceX", 2, 2, 2, 1, 53.839406))
pad7 = doc.addObject("PartDesign::Pad", "Pad006")
body.addObject(pad7)
pad7.Profile = sketch15
pad7.Length = 6

# Sketch on XY plane
sketch16 = doc.addObject("Sketcher::SketchObject", "Sketch015")
body.addObject(sketch16)
sketch16.AttachmentSupport = (doc.XY_Plane, [""])
sketch16.MapMode = "FlatFace"
add_polygon(sketch16, [(216, 6), (216, 0), (6, 0), (6, 6)])  # lines 0-3
sketch16.addGeometry(Part.Circle(App.Vector(207, 3, 0), App.Vector(0, 0, 1), 1.5), False)  # 4
sketch16.addGeometry(Part.Circle(App.Vector(192, 3, 0), App.Vector(0, 0, 1), 1.5), False)  # 5
sketch16.addConstraint(Sketcher.Constraint("Vertical", 0))
sketch16.addConstraint(Sketcher.Constraint("Horizontal", 1))
sketch16.addConstraint(Sketcher.Constraint("Vertical", 2))
sketch16.addConstraint(Sketcher.Constraint("Horizontal", 3))
sketch16.addConstraint(Sketcher.Constraint("Equal", 4, 5))
sketch16.addConstraint(Sketcher.Constraint("PointOnObject", 0, 2, -1))
sketch16.addConstraint(Sketcher.Constraint("Horizontal", 4, 3, 5, 3))
sketch16.addConstraint(Sketcher.Constraint("Diameter", 4, 3.0))
sketch16.addConstraint(Sketcher.Constraint("DistanceX", 1, 2, 1, 1, 210.0))
sketch16.addConstraint(Sketcher.Constraint("DistanceY", 0, 2, 0, 1, 6.0))
sketch16.addConstraint(Sketcher.Constraint("DistanceX", -1, 1, 4, 3, 207.0))
sketch16.addConstraint(Sketcher.Constraint("DistanceY", -1, 1, 4, 3, 3.0))
sketch16.addConstraint(Sketcher.Constraint("DistanceX", -1, 1, 5, 3, 192.0))
sketch16.addConstraint(Sketcher.Constraint("DistanceX", -1, 1, 0, 2, 216.0))
pad8 = doc.addObject("PartDesign::Pad", "Pad007")
body.addObject(pad8)
pad8.Profile = sketch16
pad8.Length = 15
pad8.Reversed = True

# Sketch on an angled plane
sketch17 = doc.addObject("Sketcher::SketchObject", "Sketch016")
body.addObject(sketch17)
sketch17.Placement = App.Placement(App.Vector(0, 22.136456, 31.614136), App.Rotation(App.Vector(1, 0, 0), App.Vector(0, 0.819152044, -0.573576436), App.Vector(0, 0.573576436, 0.819152044), "ZXY"))
sketch17.addGeometry(Part.Circle(App.Vector(187.5, 89.4, 0), App.Vector(0, 0, 1), 4), False)
sketch17.addConstraint(Sketcher.Constraint("Diameter", 0, 8.0))
sketch17.addConstraint(Sketcher.Constraint("DistanceX", -1, 1, 0, 3, 187.477555))
sketch17.addConstraint(Sketcher.Constraint("DistanceY", -1, 1, 0, 3, 89.387753))
pocket9 = doc.addObject("PartDesign::Pocket", "Pocket008")
body.addObject(pocket9)
pocket9.Profile = sketch17
pocket9.Length = 15

# Sketch on an angled plane
sketch18 = doc.addObject("Sketcher::SketchObject", "Sketch017")
body.addObject(sketch18)
sketch18.Placement = App.Placement(App.Vector(0, 22.136456, 31.614136), App.Rotation(App.Vector(1, 0, 0), App.Vector(0, 0.819152044, -0.573576436), App.Vector(0, 0.573576436, 0.819152044), "ZXY"))
sketch18.addGeometry(Part.Circle(App.Vector(32.6, 89.4, 0), App.Vector(0, 0, 1), 4), False)
sketch18.addConstraint(Sketcher.Constraint("Diameter", 0, 8.0))
sketch18.addConstraint(Sketcher.Constraint("DistanceX", -1, 1, 0, 3, 32.625))
sketch18.addConstraint(Sketcher.Constraint("DistanceY", -1, 1, 0, 3, 89.387753))
pocket10 = doc.addObject("PartDesign::Pocket", "Pocket009")
body.addObject(pocket10)
pocket10.Profile = sketch18
pocket10.Length = 15

doc.recompute()
